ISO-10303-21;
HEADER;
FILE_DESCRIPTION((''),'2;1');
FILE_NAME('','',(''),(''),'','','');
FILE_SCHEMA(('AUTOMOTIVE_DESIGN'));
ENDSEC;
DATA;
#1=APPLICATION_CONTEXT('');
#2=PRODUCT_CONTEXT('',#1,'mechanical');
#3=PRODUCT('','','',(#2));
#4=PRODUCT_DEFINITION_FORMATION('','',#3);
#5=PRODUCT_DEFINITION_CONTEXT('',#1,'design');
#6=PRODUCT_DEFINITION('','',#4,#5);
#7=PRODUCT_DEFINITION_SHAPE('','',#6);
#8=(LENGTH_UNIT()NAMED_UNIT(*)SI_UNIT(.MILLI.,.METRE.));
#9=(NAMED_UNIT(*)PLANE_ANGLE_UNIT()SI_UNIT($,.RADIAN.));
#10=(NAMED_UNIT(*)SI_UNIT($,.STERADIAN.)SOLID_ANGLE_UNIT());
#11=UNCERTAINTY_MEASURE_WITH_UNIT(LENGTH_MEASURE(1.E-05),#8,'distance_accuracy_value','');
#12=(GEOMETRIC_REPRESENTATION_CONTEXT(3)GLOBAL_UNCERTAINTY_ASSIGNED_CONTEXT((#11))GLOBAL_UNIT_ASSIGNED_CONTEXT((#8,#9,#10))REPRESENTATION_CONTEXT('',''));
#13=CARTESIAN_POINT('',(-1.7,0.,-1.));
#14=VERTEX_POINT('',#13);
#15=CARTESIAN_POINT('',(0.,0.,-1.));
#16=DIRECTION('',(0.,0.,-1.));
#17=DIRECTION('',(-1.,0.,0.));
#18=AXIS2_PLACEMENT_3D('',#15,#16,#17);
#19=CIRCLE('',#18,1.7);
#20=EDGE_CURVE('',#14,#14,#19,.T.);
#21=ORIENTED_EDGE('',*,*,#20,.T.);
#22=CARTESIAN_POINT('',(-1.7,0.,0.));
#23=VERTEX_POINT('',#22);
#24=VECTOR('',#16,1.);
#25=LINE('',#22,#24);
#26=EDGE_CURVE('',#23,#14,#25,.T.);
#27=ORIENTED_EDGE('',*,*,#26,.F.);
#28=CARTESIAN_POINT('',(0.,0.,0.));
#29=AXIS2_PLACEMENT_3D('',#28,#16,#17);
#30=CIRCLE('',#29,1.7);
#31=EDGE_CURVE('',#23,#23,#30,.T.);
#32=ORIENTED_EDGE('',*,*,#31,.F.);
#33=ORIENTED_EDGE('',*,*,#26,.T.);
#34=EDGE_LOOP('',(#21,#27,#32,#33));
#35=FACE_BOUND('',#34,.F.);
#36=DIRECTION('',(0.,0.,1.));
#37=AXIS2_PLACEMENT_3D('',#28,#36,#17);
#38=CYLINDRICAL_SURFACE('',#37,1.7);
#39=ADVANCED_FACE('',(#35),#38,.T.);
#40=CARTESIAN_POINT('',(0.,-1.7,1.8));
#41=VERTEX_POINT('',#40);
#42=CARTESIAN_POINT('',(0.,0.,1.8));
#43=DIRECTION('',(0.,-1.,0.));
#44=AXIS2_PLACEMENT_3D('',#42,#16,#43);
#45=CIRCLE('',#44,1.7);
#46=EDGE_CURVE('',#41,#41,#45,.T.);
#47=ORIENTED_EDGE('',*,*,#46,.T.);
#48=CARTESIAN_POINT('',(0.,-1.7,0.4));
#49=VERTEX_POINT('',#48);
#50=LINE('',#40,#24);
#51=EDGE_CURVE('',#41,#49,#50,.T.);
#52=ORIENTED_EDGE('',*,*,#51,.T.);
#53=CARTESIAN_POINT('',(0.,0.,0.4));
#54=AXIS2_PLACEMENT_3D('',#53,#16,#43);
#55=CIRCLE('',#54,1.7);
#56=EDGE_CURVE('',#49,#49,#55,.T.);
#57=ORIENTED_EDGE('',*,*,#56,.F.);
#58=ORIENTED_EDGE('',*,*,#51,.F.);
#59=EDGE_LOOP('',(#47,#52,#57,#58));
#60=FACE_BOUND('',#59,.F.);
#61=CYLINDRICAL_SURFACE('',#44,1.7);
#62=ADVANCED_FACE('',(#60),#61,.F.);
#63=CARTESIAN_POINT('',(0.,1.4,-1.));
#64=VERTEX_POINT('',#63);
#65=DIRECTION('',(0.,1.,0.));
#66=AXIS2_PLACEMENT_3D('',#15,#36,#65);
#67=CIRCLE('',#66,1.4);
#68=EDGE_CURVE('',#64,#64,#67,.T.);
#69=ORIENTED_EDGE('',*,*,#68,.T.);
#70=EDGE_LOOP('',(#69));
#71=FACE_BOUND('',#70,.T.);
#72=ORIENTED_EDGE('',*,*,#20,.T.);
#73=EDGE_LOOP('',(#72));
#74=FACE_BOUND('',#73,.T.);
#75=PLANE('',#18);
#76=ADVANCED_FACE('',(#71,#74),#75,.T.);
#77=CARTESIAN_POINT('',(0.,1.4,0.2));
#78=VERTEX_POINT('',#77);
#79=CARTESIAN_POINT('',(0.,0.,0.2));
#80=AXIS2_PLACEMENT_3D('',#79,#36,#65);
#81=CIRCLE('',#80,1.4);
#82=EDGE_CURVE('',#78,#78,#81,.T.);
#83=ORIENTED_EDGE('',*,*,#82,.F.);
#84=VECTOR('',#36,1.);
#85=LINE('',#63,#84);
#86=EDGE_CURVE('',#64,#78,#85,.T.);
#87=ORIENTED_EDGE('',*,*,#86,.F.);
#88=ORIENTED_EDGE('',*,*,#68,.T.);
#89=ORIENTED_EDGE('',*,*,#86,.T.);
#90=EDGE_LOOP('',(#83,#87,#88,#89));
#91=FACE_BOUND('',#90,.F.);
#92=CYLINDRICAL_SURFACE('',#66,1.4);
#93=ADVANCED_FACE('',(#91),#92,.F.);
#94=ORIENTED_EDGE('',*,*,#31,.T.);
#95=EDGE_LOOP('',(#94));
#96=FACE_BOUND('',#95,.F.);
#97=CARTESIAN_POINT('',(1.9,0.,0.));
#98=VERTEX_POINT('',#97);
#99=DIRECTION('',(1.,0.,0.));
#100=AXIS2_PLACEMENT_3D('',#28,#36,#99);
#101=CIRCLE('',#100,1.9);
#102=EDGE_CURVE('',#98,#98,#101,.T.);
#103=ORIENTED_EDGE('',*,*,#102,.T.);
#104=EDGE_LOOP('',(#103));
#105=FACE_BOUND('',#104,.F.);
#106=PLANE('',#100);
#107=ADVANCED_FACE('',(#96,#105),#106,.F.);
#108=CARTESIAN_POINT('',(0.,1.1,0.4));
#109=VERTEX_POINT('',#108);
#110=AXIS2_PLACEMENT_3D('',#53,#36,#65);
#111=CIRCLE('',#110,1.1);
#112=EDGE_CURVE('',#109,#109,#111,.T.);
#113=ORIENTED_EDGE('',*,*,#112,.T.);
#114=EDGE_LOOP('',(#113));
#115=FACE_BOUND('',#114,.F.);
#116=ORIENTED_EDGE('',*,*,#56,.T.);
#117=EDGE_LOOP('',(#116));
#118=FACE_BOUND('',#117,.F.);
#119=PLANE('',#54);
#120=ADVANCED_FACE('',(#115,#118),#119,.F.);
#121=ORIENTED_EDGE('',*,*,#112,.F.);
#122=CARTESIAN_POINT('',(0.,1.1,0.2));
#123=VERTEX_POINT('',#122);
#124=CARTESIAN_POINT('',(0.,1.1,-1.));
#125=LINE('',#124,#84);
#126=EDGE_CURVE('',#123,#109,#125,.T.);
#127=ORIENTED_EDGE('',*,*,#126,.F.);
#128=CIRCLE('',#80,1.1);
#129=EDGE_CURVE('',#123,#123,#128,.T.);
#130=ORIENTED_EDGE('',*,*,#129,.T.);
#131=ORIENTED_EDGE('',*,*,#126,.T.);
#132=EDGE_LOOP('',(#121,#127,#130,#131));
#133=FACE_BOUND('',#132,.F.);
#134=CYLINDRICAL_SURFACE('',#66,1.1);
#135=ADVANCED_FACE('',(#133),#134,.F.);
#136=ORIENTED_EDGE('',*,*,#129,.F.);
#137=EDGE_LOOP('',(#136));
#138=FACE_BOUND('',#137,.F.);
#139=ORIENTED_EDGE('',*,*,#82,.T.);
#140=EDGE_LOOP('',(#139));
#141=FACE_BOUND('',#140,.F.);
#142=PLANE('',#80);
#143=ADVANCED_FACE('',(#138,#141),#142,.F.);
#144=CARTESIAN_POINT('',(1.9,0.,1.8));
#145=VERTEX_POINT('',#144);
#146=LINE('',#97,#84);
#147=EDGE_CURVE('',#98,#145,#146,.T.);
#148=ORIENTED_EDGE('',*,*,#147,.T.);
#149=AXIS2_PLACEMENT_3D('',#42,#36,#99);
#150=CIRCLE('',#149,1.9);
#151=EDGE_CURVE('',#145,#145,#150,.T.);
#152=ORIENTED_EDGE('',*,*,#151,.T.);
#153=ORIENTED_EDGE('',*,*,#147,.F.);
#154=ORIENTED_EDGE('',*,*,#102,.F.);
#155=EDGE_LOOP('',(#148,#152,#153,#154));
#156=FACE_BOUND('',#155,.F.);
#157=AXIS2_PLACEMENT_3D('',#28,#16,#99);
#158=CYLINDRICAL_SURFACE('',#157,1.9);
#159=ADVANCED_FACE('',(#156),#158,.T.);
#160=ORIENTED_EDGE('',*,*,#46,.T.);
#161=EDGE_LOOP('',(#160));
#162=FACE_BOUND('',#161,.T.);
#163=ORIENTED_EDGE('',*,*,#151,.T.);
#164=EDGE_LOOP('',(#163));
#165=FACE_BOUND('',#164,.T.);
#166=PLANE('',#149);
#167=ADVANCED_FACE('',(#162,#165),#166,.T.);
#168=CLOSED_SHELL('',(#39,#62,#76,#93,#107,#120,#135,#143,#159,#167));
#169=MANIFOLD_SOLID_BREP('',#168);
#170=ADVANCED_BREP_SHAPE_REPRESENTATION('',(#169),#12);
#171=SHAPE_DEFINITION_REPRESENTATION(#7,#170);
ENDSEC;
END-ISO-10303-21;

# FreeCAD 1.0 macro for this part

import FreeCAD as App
import Part
import Sketcher

V = App.Vector

doc = App.newDocument("Part")
body = doc.addObject("PartDesign::Body", "Body")

# Sketch on XY plane
sketch1 = body.newObject("Sketcher::SketchObject", "Sketch")
sketch1.AttachmentSupport = (doc.getObject("XY_Plane"), [""])
sketch1.MapMode = "FlatFace"
sketch1.addGeometry(Part.Circle(V(0, 0, 0), V(0, 0, 1), 1.9), False)
sketch1.addConstraint([
    Sketcher.Constraint("Coincident", 0, 3, -1, 1),
    Sketcher.Constraint("Diameter", 0, 3.8),
])
pad1 = body.newObject("PartDesign::Pad", "Pad")
pad1.Profile = sketch1
pad1.Length = 1.8

# Sketch on XY plane
sketch2 = body.newObject("Sketcher::SketchObject", "Sketch001")
sketch2.AttachmentSupport = (doc.getObject("XY_Plane"), [""])
sketch2.MapMode = "FlatFace"
sketch2.AttachmentOffset = App.Placement(V(0, 0, 1.8), App.Rotation())
sketch2.addGeometry(Part.Circle(V(0, 0, 0), V(0, 0, 1), 1.7), False)
sketch2.addConstraint([
    Sketcher.Constraint("Coincident", 0, 3, -1, 1),
    Sketcher.Constraint("Diameter", 0, 3.4),
])
doc.recompute()
hole = body.newObject("PartDesign::Hole", "Hole")
hole.Profile = sketch2
hole.ThreadType = "None"
hole.Diameter = 3.4
hole.DepthType = "Dimension"
hole.Depth = 1.4
hole.DrillPoint = "Flat"

# Sketch on XY plane
sketch3 = body.newObject("Sketcher::SketchObject", "Sketch002")
sketch3.AttachmentSupport = (doc.getObject("XY_Plane"), [""])
sketch3.MapMode = "FlatFace"
sketch3.addGeometry(Part.Circle(V(0, 0, 0), V(0, 0, 1), 1.7), False)
sketch3.addConstraint([
    Sketcher.Constraint("Coincident", 0, 3, -1, 1),
    Sketcher.Constraint("Diameter", 0, 3.4),
])
pad2 = body.newObject("PartDesign::Pad", "Pad001")
pad2.Profile = sketch3
pad2.Length = 1
pad2.Reversed = True

# Sketch on XY plane
sketch4 = body.newObject("Sketcher::SketchObject", "Sketch003")
sketch4.AttachmentSupport = (doc.getObject("XY_Plane"), [""])
sketch4.MapMode = "FlatFace"
sketch4.AttachmentOffset = App.Placement(V(0, 0, -1), App.Rotation())
sketch4.addGeometry(Part.Circle(V(0, 0, 0), V(0, 0, 1), 1.1), False)
sketch4.addConstraint([
    Sketcher.Constraint("Coincident", 0, 3, -1, 1),
    Sketcher.Constraint("Diameter", 0, 2.2),
])
doc.recompute()
hole2 = body.newObject("PartDesign::Hole", "Hole001")
hole2.Profile = sketch4
hole2.ThreadType = "None"
hole2.Diameter = 2.2
hole2.DepthType = "ThroughAll"
hole2.Reversed = True

# Sketch on XY plane
sketch5 = body.newObject("Sketcher::SketchObject", "Sketch004")
sketch5.AttachmentSupport = (doc.getObject("XY_Plane"), [""])
sketch5.MapMode = "FlatFace"
sketch5.AttachmentOffset = App.Placement(V(0, 0, -1), App.Rotation())
sketch5.addGeometry(Part.Circle(V(0, 0, 0), V(0, 0, 1), 1.4), False)
sketch5.addConstraint([
    Sketcher.Constraint("Coincident", 0, 3, -1, 1),
    Sketcher.Constraint("Diameter", 0, 2.8),
])
doc.recompute()
hole3 = body.newObject("PartDesign::Hole", "Hole002")
hole3.Profile = sketch5
hole3.ThreadType = "None"
hole3.Diameter = 2.8
hole3.DepthType = "Dimension"
hole3.Depth = 1.2
hole3.DrillPoint = "Flat"
hole3.Reversed = True

doc.recompute()
